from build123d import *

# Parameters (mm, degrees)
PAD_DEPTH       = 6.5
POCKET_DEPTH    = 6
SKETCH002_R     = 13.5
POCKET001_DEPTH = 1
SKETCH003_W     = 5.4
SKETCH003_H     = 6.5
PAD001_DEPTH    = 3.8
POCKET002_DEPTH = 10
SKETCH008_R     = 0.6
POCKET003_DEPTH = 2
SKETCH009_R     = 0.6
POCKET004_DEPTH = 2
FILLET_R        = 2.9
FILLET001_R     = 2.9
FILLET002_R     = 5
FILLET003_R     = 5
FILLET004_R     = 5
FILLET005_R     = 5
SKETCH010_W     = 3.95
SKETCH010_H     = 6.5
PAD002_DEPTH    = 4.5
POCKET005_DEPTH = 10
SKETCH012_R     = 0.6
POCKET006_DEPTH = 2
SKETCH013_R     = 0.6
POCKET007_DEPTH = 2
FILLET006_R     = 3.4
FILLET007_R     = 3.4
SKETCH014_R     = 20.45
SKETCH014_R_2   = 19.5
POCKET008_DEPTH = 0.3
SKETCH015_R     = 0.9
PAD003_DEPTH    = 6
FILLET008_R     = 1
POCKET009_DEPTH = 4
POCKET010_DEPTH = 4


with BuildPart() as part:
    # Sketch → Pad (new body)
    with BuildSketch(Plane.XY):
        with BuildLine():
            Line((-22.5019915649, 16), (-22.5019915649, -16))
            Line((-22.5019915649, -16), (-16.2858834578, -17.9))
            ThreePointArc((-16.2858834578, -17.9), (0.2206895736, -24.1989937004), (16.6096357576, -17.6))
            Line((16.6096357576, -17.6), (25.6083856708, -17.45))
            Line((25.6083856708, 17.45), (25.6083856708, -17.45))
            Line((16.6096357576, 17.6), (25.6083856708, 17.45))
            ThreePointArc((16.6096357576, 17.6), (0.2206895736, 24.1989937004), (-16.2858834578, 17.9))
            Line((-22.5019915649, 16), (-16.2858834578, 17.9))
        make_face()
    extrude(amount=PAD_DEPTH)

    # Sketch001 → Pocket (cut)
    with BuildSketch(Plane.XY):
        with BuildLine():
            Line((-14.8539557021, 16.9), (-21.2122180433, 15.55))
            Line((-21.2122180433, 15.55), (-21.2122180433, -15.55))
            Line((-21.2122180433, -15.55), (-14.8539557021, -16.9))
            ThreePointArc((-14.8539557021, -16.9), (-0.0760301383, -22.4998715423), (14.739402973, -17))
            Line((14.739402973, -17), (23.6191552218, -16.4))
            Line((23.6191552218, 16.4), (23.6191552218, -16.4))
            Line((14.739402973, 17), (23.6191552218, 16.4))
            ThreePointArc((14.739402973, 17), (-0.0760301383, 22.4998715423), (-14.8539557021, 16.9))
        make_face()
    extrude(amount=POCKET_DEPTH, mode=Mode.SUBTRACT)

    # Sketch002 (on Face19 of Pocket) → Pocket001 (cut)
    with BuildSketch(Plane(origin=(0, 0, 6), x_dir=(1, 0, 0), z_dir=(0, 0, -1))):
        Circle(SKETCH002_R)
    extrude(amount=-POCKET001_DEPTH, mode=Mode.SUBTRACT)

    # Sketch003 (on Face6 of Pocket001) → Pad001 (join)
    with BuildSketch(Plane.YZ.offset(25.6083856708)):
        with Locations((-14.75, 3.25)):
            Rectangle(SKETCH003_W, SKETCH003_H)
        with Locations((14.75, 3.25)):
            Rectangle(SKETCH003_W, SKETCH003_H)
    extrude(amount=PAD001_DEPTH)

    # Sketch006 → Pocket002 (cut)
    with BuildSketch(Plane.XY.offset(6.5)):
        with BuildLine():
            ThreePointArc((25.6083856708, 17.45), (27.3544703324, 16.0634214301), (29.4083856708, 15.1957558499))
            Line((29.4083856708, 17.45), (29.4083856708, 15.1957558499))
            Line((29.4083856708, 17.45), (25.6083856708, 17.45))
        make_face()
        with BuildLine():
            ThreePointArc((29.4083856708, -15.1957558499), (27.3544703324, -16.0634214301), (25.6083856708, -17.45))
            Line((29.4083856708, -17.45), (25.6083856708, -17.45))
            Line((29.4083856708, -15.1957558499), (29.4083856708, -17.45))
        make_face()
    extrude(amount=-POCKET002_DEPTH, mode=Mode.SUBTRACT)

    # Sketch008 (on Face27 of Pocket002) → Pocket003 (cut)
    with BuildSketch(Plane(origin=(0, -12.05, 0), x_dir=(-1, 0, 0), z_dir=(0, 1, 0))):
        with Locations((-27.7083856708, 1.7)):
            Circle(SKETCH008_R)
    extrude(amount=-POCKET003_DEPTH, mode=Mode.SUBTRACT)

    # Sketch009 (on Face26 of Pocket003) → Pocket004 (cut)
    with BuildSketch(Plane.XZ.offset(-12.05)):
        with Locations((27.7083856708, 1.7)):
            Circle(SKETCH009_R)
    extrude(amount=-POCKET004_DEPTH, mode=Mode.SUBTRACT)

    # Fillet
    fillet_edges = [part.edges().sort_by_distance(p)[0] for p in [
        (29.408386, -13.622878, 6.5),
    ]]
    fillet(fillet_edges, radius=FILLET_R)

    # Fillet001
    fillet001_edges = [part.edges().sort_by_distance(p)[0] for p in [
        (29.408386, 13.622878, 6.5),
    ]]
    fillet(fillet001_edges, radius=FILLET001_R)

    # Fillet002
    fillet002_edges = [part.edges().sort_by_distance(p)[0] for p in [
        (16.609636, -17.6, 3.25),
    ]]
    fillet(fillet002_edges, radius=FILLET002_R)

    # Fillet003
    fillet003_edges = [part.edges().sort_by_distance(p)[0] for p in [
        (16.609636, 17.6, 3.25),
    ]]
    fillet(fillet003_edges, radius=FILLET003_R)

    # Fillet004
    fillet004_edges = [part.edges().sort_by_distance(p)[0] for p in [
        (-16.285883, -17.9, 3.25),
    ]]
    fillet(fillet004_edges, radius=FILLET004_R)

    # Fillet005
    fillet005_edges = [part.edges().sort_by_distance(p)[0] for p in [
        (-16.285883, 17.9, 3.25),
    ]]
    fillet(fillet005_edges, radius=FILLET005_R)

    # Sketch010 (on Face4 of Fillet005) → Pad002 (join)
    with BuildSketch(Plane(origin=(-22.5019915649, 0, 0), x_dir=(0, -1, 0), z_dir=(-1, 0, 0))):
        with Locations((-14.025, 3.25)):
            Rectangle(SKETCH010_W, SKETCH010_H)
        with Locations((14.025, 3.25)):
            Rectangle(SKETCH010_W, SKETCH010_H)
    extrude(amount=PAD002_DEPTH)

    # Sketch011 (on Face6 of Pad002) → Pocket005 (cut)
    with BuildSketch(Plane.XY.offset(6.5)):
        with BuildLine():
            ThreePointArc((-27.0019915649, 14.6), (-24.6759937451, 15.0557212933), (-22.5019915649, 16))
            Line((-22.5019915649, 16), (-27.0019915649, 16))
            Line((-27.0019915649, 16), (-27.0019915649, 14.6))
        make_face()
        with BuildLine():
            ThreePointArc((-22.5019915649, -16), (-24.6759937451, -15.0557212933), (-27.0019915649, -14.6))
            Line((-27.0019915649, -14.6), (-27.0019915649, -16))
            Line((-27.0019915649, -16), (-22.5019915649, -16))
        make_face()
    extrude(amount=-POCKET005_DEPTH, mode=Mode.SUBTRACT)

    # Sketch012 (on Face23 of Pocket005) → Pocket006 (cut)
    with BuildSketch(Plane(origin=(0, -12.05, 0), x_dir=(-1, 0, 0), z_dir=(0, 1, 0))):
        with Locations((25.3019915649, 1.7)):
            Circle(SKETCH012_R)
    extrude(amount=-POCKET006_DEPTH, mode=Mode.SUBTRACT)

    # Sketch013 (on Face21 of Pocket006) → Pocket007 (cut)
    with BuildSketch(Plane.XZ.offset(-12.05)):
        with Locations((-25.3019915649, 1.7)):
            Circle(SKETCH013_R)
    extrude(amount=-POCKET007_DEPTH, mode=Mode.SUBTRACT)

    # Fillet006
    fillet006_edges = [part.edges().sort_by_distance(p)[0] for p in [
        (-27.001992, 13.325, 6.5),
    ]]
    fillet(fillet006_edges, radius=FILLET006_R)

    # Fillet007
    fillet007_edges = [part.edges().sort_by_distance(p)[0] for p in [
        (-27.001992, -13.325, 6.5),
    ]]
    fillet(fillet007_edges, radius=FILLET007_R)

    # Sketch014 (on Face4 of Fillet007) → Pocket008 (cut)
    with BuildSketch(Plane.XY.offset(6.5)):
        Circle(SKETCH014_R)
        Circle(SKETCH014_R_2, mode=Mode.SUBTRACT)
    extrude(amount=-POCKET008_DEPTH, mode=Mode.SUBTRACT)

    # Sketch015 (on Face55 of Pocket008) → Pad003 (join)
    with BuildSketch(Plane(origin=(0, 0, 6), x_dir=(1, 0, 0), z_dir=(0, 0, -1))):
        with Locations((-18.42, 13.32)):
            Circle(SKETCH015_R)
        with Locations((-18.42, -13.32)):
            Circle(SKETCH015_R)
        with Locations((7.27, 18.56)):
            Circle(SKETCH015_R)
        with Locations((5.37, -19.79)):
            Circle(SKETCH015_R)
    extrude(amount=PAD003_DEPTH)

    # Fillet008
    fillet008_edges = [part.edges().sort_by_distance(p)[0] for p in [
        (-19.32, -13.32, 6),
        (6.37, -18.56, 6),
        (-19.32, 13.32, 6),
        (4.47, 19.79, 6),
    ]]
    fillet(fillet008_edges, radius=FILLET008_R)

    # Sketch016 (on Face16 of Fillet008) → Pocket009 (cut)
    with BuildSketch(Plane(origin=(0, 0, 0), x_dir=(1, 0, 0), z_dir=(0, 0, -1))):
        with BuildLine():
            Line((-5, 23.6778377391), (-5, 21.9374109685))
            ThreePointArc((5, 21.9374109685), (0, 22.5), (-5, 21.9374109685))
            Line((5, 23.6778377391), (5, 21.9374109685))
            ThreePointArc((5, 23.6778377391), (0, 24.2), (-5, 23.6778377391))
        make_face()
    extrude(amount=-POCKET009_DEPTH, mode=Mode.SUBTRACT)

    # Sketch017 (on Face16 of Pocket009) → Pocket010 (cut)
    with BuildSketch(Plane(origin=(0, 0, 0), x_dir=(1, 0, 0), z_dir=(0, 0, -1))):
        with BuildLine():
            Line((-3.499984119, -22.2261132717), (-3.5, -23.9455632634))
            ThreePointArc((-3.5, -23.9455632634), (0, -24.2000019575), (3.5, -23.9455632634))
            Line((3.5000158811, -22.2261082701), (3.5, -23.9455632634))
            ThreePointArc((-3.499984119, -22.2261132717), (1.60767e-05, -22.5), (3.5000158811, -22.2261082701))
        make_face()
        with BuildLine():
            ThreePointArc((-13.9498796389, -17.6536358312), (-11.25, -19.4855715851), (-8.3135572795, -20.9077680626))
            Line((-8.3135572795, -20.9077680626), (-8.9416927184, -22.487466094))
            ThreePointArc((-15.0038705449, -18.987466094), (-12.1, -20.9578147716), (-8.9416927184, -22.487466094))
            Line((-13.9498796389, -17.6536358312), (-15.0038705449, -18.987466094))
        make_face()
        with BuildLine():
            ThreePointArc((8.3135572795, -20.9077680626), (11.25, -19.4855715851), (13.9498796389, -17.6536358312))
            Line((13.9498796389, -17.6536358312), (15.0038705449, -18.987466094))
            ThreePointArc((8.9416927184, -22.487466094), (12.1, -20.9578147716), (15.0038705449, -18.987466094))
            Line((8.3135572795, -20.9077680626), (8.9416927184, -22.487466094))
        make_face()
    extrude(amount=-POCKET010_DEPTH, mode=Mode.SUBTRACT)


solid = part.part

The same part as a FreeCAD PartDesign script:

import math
import FreeCAD as App
import Part
import Sketcher

V = App.Vector


def edges_at(feature, points):
    """Names of the edges that pass closest to the given points."""
    edges = feature.Shape.Edges
    near = lambda p: min(range(len(edges)), key=lambda i: edges[i].distToShape(Part.Vertex(*p))[0])
    return sorted({f"Edge{near(p) + 1}" for p in points})


def add_polygon(sketch, points):
    """Adds a closed chain of lines whose ends are joined by coincident constraints."""
    first, n = sketch.GeometryCount, len(points)
    for a, b in zip(points, points[1:] + points[:1]):
        sketch.addGeometry(Part.LineSegment(App.Vector(*a, 0), App.Vector(*b, 0)), False)
    for i in range(n):
        sketch.addConstraint(Sketcher.Constraint("Coincident", first + i, 2, first + (i + 1) % n, 1))

doc = App.newDocument("Part")
body = doc.addObject("PartDesign::Body", "Body")

# Sketch on XY plane
sketch1 = body.newObject("Sketcher::SketchObject", "Sketch")
sketch1.AttachmentSupport = (doc.getObject("XY_Plane"), [""])
sketch1.MapMode = "FlatFace"
sketch1.addGeometry(Part.LineSegment(V(-23, 16, 0), V(-23, -16, 0)), False)
sketch1.addGeometry(Part.LineSegment(V(-23, -16, 0), V(-16, -18, 0)), False)
sketch1.addGeometry(Part.ArcOfCircle(Part.Circle(V(0, 0, 0), V(0, 0, 1), 24), math.radians(-132), math.radians(-47)), False)
sketch1.addGeometry(Part.LineSegment(V(17, -18, 0), V(26, -17, 0)), False)
sketch1.addGeometry(Part.LineSegment(V(26, -17, 0), V(26, 17, 0)), False)
sketch1.addGeometry(Part.LineSegment(V(26, 17, 0), V(17, 18, 0)), False)
sketch1.addGeometry(Part.ArcOfCircle(Part.Circle(V(0, 0, 0), V(0, 0, 1), 24), math.radians(47), math.radians(132)), False)
sketch1.addGeometry(Part.LineSegment(V(-16, 18, 0), V(-23, 16, 0)), False)
sketch1.addConstraint(Sketcher.Constraint("Coincident", 0, 2, 1, 1))
sketch1.addConstraint(Sketcher.Constraint("Coincident", 1, 2, 2, 1))
sketch1.addConstraint(Sketcher.Constraint("Coincident", 2, 2, 3, 1))
sketch1.addConstraint(Sketcher.Constraint("Coincident", 3, 2, 4, 1))
sketch1.addConstraint(Sketcher.Constraint("Coincident", 4, 2, 5, 1))
sketch1.addConstraint(Sketcher.Constraint("Coincident", 5, 2, 6, 1))
sketch1.addConstraint(Sketcher.Constraint("Coincident", 6, 2, 7, 1))
sketch1.addConstraint(Sketcher.Constraint("Coincident", 7, 2, 0, 1))
sketch1.addConstraint(Sketcher.Constraint("Vertical", 0))
sketch1.addConstraint(Sketcher.Constraint("Vertical", 4))
sketch1.addConstraint(Sketcher.Constraint("Coincident", 2, 3, -1, 1))
sketch1.addConstraint(Sketcher.Constraint("Coincident", 6, 3, -1, 1))
sketch1.addConstraint(Sketcher.Constraint("Equal", 2, 6))
sketch1.addConstraint(Sketcher.Constraint("Vertical", 2, 2, 5, 2))
sketch1.addConstraint(Sketcher.Constraint("Vertical", 1, 2, 6, 2))
sketch1.addConstraint(Sketcher.Constraint("Equal", 3, 5))
sketch1.addConstraint(Sketcher.Constraint("Equal", 1, 7))
sketch1.addConstraint(Sketcher.Constraint("Radius", 2, 24.2))
sketch1.addConstraint(Sketcher.Constraint("DistanceY", 0, 2, 0, 1, 32.0))
sketch1.addConstraint(Sketcher.Constraint("Distance", 3, 9.0))
sketch1.addConstraint(Sketcher.Constraint("DistanceY", 4, 1, 4, 2, 34.9))
sketch1.addConstraint(Sketcher.Constraint("Distance", 1, 6.5))
sketch1.addConstraint(Sketcher.Constraint("DistanceY", 1, 2, -1, 1, 17.9))
sketch1.addConstraint(Sketcher.Constraint("DistanceY", 2, 2, -1, 1, 17.6))
pad1 = body.newObject("PartDesign::Pad", "Pad")
pad1.Profile = sketch1
pad1.Length = 6.5

# Sketch on XY plane
sketch2 = body.newObject("Sketcher::SketchObject", "Sketch001")
sketch2.AttachmentSupport = (doc.getObject("XY_Plane"), [""])
sketch2.MapMode = "FlatFace"
sketch2.addGeometry(Part.LineSegment(V(-15, 17, 0), V(-21, 16, 0)), False)
sketch2.addGeometry(Part.LineSegment(V(-21, 16, 0), V(-21, -16, 0)), False)
sketch2.addGeometry(Part.LineSegment(V(-21, -16, 0), V(-15, -17, 0)), False)
sketch2.addGeometry(Part.ArcOfCircle(Part.Circle(V(0, 0, 0), V(0, 0, 1), 22), math.radians(-131), math.radians(-49)), False)
sketch2.addGeometry(Part.LineSegment(V(15, -17, 0), V(24, -16, 0)), False)
sketch2.addGeometry(Part.LineSegment(V(24, -16, 0), V(24, 16, 0)), False)
sketch2.addGeometry(Part.LineSegment(V(24, 16, 0), V(15, 17, 0)), False)
sketch2.addGeometry(Part.ArcOfCircle(Part.Circle(V(0, 0, 0), V(0, 0, 1), 22), math.radians(49), math.radians(131)), False)
sketch2.addConstraint(Sketcher.Constraint("Coincident", 0, 2, 1, 1))
sketch2.addConstraint(Sketcher.Constraint("Coincident", 1, 2, 2, 1))
sketch2.addConstraint(Sketcher.Constraint("Coincident", 2, 2, 3, 1))
sketch2.addConstraint(Sketcher.Constraint("Coincident", 3, 2, 4, 1))
sketch2.addConstraint(Sketcher.Constraint("Coincident", 4, 2, 5, 1))
sketch2.addConstraint(Sketcher.Constraint("Coincident", 5, 2, 6, 1))
sketch2.addConstraint(Sketcher.Constraint("Coincident", 6, 2, 7, 1))
sketch2.addConstraint(Sketcher.Constraint("Coincident", 7, 2, 0, 1))
sketch2.addConstraint(Sketcher.Constraint("Vertical", 1))
sketch2.addConstraint(Sketcher.Constraint("Vertical", 5))
sketch2.addConstraint(Sketcher.Constraint("Coincident", 3, 3, -1, 1))
sketch2.addConstraint(Sketcher.Constraint("Coincident", 7, 3, -1, 1))
sketch2.addConstraint(Sketcher.Constraint("Equal", 3, 7))
sketch2.addConstraint(Sketcher.Constraint("Vertical", 3, 2, 6, 2))
sketch2.addConstraint(Sketcher.Constraint("Vertical", 2, 2, 7, 2))
sketch2.addConstraint(Sketcher.Constraint("Equal", 0, 2))
sketch2.addConstraint(Sketcher.Constraint("Equal", 4, 6))
sketch2.addConstraint(Sketcher.Constraint("Radius", 3, 22.5))
sketch2.addConstraint(Sketcher.Constraint("DistanceY", 1, 2, 1, 1, 31.1))
sketch2.addConstraint(Sketcher.Constraint("DistanceY", 5, 1, 5, 2, 32.8))
sketch2.addConstraint(Sketcher.Constraint("DistanceY", 3, 2, -1, 1, 17.0))
sketch2.addConstraint(Sketcher.Constraint("Distance", 0, 6.5))
sketch2.addConstraint(Sketcher.Constraint("Distance", 4, 8.9))
sketch2.addConstraint(Sketcher.Constraint("DistanceY", 2, 2, -1, 1, 16.9))
pocket1 = body.newObject("PartDesign::Pocket", "Pocket")
pocket1.Profile = sketch2
pocket1.Length = 6
pocket1.Reversed = True

# Sketch on XY plane
sketch3 = body.newObject("Sketcher::SketchObject", "Sketch002")
sketch3.AttachmentSupport = (doc.getObject("XY_Plane"), [""])
sketch3.MapMode = "FlatFace"
sketch3.AttachmentOffset = App.Placement(V(0, 0, 6), App.Rotation())
sketch3.addGeometry(Part.Circle(V(0, 0, 0), V(0, 0, 1), 14), False)
sketch3.addConstraint(Sketcher.Constraint("Coincident", 0, 3, -1, 1))
sketch3.addConstraint(Sketcher.Constraint("Diameter", 0, 27.0))
pocket2 = body.newObject("PartDesign::Pocket", "Pocket001")
pocket2.Profile = sketch3
pocket2.Length = 1
pocket2.Reversed = True

# Sketch on YZ plane
sketch4 = body.newObject("Sketcher::SketchObject", "Sketch003")
sketch4.AttachmentSupport = (doc.getObject("YZ_Plane"), [""])
sketch4.MapMode = "FlatFace"
sketch4.AttachmentOffset = App.Placement(V(0, 0, 25.608386), App.Rotation())
add_polygon(sketch4, [(-17, 6), (-17, 0), (-12, 0), (-12, 6)])  # lines 0-3
add_polygon(sketch4, [(12, 6), (12, 0), (17, 0), (17, 6)])  # lines 4-7
sketch4.addConstraint(Sketcher.Constraint("Vertical", 0))
sketch4.addConstraint(Sketcher.Constraint("Horizontal", 1))
sketch4.addConstraint(Sketcher.Constraint("Vertical", 2))
sketch4.addConstraint(Sketcher.Constraint("Horizontal", 3))
sketch4.addConstraint(Sketcher.Constraint("Vertical", 4))
sketch4.addConstraint(Sketcher.Constraint("Horizontal", 5))
sketch4.addConstraint(Sketcher.Constraint("Vertical", 6))
sketch4.addConstraint(Sketcher.Constraint("Horizontal", 7))
sketch4.addConstraint(Sketcher.Constraint("Symmetric", 1, 2, 4, 2, -1, 1))
sketch4.addConstraint(Sketcher.Constraint("Symmetric", 0, 2, 5, 2, -2))
sketch4.addConstraint(Sketcher.Constraint("Horizontal", 3, 2, 6, 2))
sketch4.addConstraint(Sketcher.Constraint("DistanceX", 1, 1, 1, 2, 5.4))
sketch4.addConstraint(Sketcher.Constraint("DistanceY", 0, 2, 0, 1, 6.5))
sketch4.addConstraint(Sketcher.Constraint("DistanceX", 1, 2, 4, 2, 24.1))
pad2 = body.newObject("PartDesign::Pad", "Pad001")
pad2.Profile = sketch4
pad2.Length = 3.8

# Sketch on XY plane
sketch5 = body.newObject("Sketcher::SketchObject", "Sketch004")
sketch5.AttachmentSupport = (doc.getObject("XY_Plane"), [""])
sketch5.MapMode = "FlatFace"
sketch5.AttachmentOffset = App.Placement(V(0, 0, 6.5), App.Rotation())
sketch5.addGeometry(Part.ArcOfCircle(Part.Circle(V(31.6, 23.1, 0), V(0, 0, 1), 8.2), math.radians(-136), math.radians(-105)), False)
sketch5.addGeometry(Part.LineSegment(V(29.4, 15.2, 0), V(29.4, 17.4, 0)), False)
sketch5.addGeometry(Part.LineSegment(V(29.4, 17.4, 0), V(25.6, 17.4, 0)), False)
sketch5.addGeometry(Part.ArcOfCircle(Part.Circle(V(31.6, -23.1, 0), V(0, 0, 1), 8.2), math.radians(105), math.radians(136)), False)
sketch5.addGeometry(Part.LineSegment(V(25.6, -17.4, 0), V(29.4, -17.4, 0)), False)
sketch5.addGeometry(Part.LineSegment(V(29.4, -17.4, 0), V(29.4, -15.2, 0)), False)
sketch5.addConstraint(Sketcher.Constraint("Coincident", 0, 2, 1, 1))
sketch5.addConstraint(Sketcher.Constraint("Coincident", 1, 2, 2, 1))
sketch5.addConstraint(Sketcher.Constraint("Coincident", 2, 2, 0, 1))
sketch5.addConstraint(Sketcher.Constraint("Coincident", 3, 2, 4, 1))
sketch5.addConstraint(Sketcher.Constraint("Coincident", 4, 2, 5, 1))
sketch5.addConstraint(Sketcher.Constraint("Coincident", 5, 2, 3, 1))
sketch5.addConstraint(Sketcher.Constraint("Vertical", 1))
sketch5.addConstraint(Sketcher.Constraint("Horizontal", 2))
sketch5.addConstraint(Sketcher.Constraint("Horizontal", 4))
sketch5.addConstraint(Sketcher.Constraint("Vertical", 5))
sketch5.addConstraint(Sketcher.Constraint("Equal", 0, 3))
sketch5.addConstraint(Sketcher.Constraint("Symmetric", 0, 3, 3, 3, -1))
sketch5.addConstraint(Sketcher.Constraint("Symmetric", 1, 2, 4, 2, -1))
sketch5.addConstraint(Sketcher.Constraint("DistanceX", 2, 2, 2, 1, 3.8))
sketch5.addConstraint(Sketcher.Constraint("DistanceY", 3, 3, 0, 3, 46.3))
sketch5.addConstraint(Sketcher.Constraint("DistanceY", 1, 2, 0, 3, 5.7))
sketch5.addConstraint(Sketcher.Constraint("Radius", 0, 8.239691))
sketch5.addConstraint(Sketcher.Constraint("DistanceX", -1, 1, 0, 3, 31.558386))
pocket3 = body.newObject("PartDesign::Pocket", "Pocket002")
pocket3.Profile = sketch5
pocket3.Length = 10

# Sketch on XZ plane
sketch6 = body.newObject("Sketcher::SketchObject", "Sketch005")
sketch6.AttachmentSupport = (doc.getObject("XZ_Plane"), [""])
sketch6.MapMode = "FlatFace"
sketch6.AttachmentOffset = App.Placement(V(0, 0, 12.05), App.Rotation())
sketch6.addGeometry(Part.Circle(V(27.7, 1.7, 0), V(0, 0, 1), 0.6), False)
sketch6.addConstraint(Sketcher.Constraint("Diameter", 0, 1.2))
sketch6.addConstraint(Sketcher.Constraint("DistanceY", -1, 1, 0, 3, 1.7))
sketch6.addConstraint(Sketcher.Constraint("DistanceX", -1, 1, 0, 3, 27.708386))
pocket4 = body.newObject("PartDesign::Pocket", "Pocket003")
pocket4.Profile = sketch6
pocket4.Length = 2
pocket4.Reversed = True

# Sketch on XZ plane
sketch7 = body.newObject("Sketcher::SketchObject", "Sketch006")
sketch7.AttachmentSupport = (doc.getObject("XZ_Plane"), [""])
sketch7.MapMode = "FlatFace"
sketch7.AttachmentOffset = App.Placement(V(0, 0, -12.05), App.Rotation())
sketch7.addGeometry(Part.Circle(V(27.7, 1.7, 0), V(0, 0, 1), 0.6), False)
sketch7.addConstraint(Sketcher.Constraint("Diameter", 0, 1.2))
sketch7.addConstraint(Sketcher.Constraint("DistanceY", -1, 1, 0, 3, 1.7))
sketch7.addConstraint(Sketcher.Constraint("DistanceX", -1, 1, 0, 3, 27.708386))
pocket5 = body.newObject("PartDesign::Pocket", "Pocket004")
pocket5.Profile = sketch7
pocket5.Length = 2
doc.recompute()

fillet = body.newObject("PartDesign::Fillet", "Fillet")
fillet.Base = (pocket5, edges_at(pocket5, [(29.408, -13.623, 6.5)]))
fillet.Radius = 2.9
doc.recompute()

fillet2 = body.newObject("PartDesign::Fillet", "Fillet001")
fillet2.Base = (fillet, edges_at(fillet, [(29.408, 13.623, 6.5)]))
fillet2.Radius = 2.9
doc.recompute()

fillet3 = body.newObject("PartDesign::Fillet", "Fillet002")
fillet3.Base = (fillet2, edges_at(fillet2, [(16.61, -17.6, 3.25)]))
fillet3.Radius = 5
doc.recompute()

fillet4 = body.newObject("PartDesign::Fillet", "Fillet003")
fillet4.Base = (fillet3, edges_at(fillet3, [(16.61, 17.6, 3.25)]))
fillet4.Radius = 5
doc.recompute()

fillet5 = body.newObject("PartDesign::Fillet", "Fillet004")
fillet5.Base = (fillet4, edges_at(fillet4, [(-16.286, -17.9, 3.25)]))
fillet5.Radius = 5
doc.recompute()

fillet6 = body.newObject("PartDesign::Fillet", "Fillet005")
fillet6.Base = (fillet5, edges_at(fillet5, [(-16.286, 17.9, 3.25)]))
fillet6.Radius = 5

# Sketch on YZ plane
sketch8 = body.newObject("Sketcher::SketchObject", "Sketch007")
sketch8.AttachmentSupport = (doc.getObject("YZ_Plane"), [""])
sketch8.MapMode = "FlatFace"
sketch8.AttachmentOffset = App.Placement(V(0, 0, -22.501992), App.Rotation())
add_polygon(sketch8, [(16, 6.5), (16, 0), (12.1, 0), (12.1, 6.5)])  # lines 0-3
add_polygon(sketch8, [(-12.1, 6.5), (-12.1, 0), (-16, 0), (-16, 6.5)])  # lines 4-7
sketch8.addConstraint(Sketcher.Constraint("Vertical", 0))
sketch8.addConstraint(Sketcher.Constraint("Horizontal", 1))
sketch8.addConstraint(Sketcher.Constraint("Vertical", 2))
sketch8.addConstraint(Sketcher.Constraint("Horizontal", 3))
sketch8.addConstraint(Sketcher.Constraint("Vertical", 4))
sketch8.addConstraint(Sketcher.Constraint("Horizontal", 5))
sketch8.addConstraint(Sketcher.Constraint("Vertical", 6))
sketch8.addConstraint(Sketcher.Constraint("Horizontal", 7))
sketch8.addConstraint(Sketcher.Constraint("Symmetric", 1, 2, 4, 2, -1, 1))
sketch8.addConstraint(Sketcher.Constraint("Symmetric", 0, 2, 5, 2, -2))
sketch8.addConstraint(Sketcher.Constraint("Horizontal", 3, 2, 6, 2))
sketch8.addConstraint(Sketcher.Constraint("DistanceY", 0, 2, 0, 1, 6.5))
sketch8.addConstraint(Sketcher.Constraint("DistanceX", -1, 1, 0, 2, 16.0))
sketch8.addConstraint(Sketcher.Constraint("DistanceX", 1, 2, 1, 1, 3.95))
pad3 = body.newObject("PartDesign::Pad", "Pad002")
pad3.Profile = sketch8
pad3.Length = 4.5
pad3.Reversed = True

# Sketch on XY plane
sketch9 = body.newObject("Sketcher::SketchObject", "Sketch008")
sketch9.AttachmentSupport = (doc.getObject("XY_Plane"), [""])
sketch9.MapMode = "FlatFace"
sketch9.AttachmentOffset = App.Placement(V(0, 0, 6.5), App.Rotation())
sketch9.addGeometry(Part.ArcOfCircle(Part.Circle(V(-27.9, 25.5, 0), V(0, 0, 1), 11), math.radians(-85), math.radians(-60)), False)
sketch9.addGeometry(Part.LineSegment(V(-22.5, 16, 0), V(-27, 16, 0)), False)
sketch9.addGeometry(Part.LineSegment(V(-27, 16, 0), V(-27, 14.6, 0)), False)
sketch9.addGeometry(Part.ArcOfCircle(Part.Circle(V(-27.9, -25.5, 0), V(0, 0, 1), 11), math.radians(60), math.radians(85)), False)
sketch9.addGeometry(Part.LineSegment(V(-27, -14.6, 0), V(-27, -16, 0)), False)
sketch9.addGeometry(Part.LineSegment(V(-27, -16, 0), V(-22.5, -16, 0)), False)
sketch9.addConstraint(Sketcher.Constraint("Coincident", 0, 2, 1, 1))
sketch9.addConstraint(Sketcher.Constraint("Coincident", 1, 2, 2, 1))
sketch9.addConstraint(Sketcher.Constraint("Coincident", 2, 2, 0, 1))
sketch9.addConstraint(Sketcher.Constraint("Coincident", 3, 2, 4, 1))
sketch9.addConstraint(Sketcher.Constraint("Coincident", 4, 2, 5, 1))
sketch9.addConstraint(Sketcher.Constraint("Coincident", 5, 2, 3, 1))
sketch9.addConstraint(Sketcher.Constraint("Horizontal", 1))
sketch9.addConstraint(Sketcher.Constraint("Vertical", 2))
sketch9.addConstraint(Sketcher.Constraint("Vertical", 4))
sketch9.addConstraint(Sketcher.Constraint("Horizontal", 5))
sketch9.addConstraint(Sketcher.Constraint("Equal", 0, 3))
sketch9.addConstraint(Sketcher.Constraint("Symmetric", 0, 3, 3, 3, -1))
sketch9.addConstraint(Sketcher.Constraint("Symmetric", 1, 2, 4, 2, -1))
sketch9.addConstraint(Sketcher.Constraint("DistanceX", 1, 2, 1, 1, 4.5))
sketch9.addConstraint(Sketcher.Constraint("DistanceY", 2, 2, 2, 1, 1.4))
sketch9.addConstraint(Sketcher.Constraint("DistanceY", -1, 1, 0, 2, 16.0))
sketch9.addConstraint(Sketcher.Constraint("DistanceY", -1, 1, 0, 3, 25.54))
sketch9.addConstraint(Sketcher.Constraint("DistanceX", 0, 3, -1, 1, 27.937769))
pocket6 = body.newObject("PartDesign::Pocket", "Pocket005")
pocket6.Profile = sketch9
pocket6.Length = 10

# Sketch on XZ plane
sketch10 = body.newObject("Sketcher::SketchObject", "Sketch009")
sketch10.AttachmentSupport = (doc.getObject("XZ_Plane"), [""])
sketch10.MapMode = "FlatFace"
sketch10.AttachmentOffset = App.Placement(V(0, 0, 12.05), App.Rotation())
sketch10.addGeometry(Part.Circle(V(-25.3, 1.7, 0), V(0, 0, 1), 0.6), False)
sketch10.addConstraint(Sketcher.Constraint("Diameter", 0, 1.2))
sketch10.addConstraint(Sketcher.Constraint("DistanceY", -1, 1, 0, 3, 1.7))
sketch10.addConstraint(Sketcher.Constraint("DistanceX", 0, 3, -1, 1, 25.301992))
pocket7 = body.newObject("PartDesign::Pocket", "Pocket006")
pocket7.Profile = sketch10
pocket7.Length = 2
pocket7.Reversed = True

# Sketch on XZ plane
sketch11 = body.newObject("Sketcher::SketchObject", "Sketch010")
sketch11.AttachmentSupport = (doc.getObject("XZ_Plane"), [""])
sketch11.MapMode = "FlatFace"
sketch11.AttachmentOffset = App.Placement(V(0, 0, -12.05), App.Rotation())
sketch11.addGeometry(Part.Circle(V(-25.3, 1.7, 0), V(0, 0, 1), 0.6), False)
sketch11.addConstraint(Sketcher.Constraint("Diameter", 0, 1.2))
sketch11.addConstraint(Sketcher.Constraint("DistanceY", -1, 1, 0, 3, 1.7))
sketch11.addConstraint(Sketcher.Constraint("DistanceX", 0, 3, -1, 1, 25.301992))
pocket8 = body.newObject("PartDesign::Pocket", "Pocket007")
pocket8.Profile = sketch11
pocket8.Length = 2
doc.recompute()

fillet7 = body.newObject("PartDesign::Fillet", "Fillet006")
fillet7.Base = (pocket8, edges_at(pocket8, [(-27.002, 13.325, 6.5)]))
fillet7.Radius = 3.4
doc.recompute()

fillet8 = body.newObject("PartDesign::Fillet", "Fillet007")
fillet8.Base = (fillet7, edges_at(fillet7, [(-27.002, -13.325, 6.5)]))
fillet8.Radius = 3.4

# Sketch on XY plane
sketch12 = body.newObject("Sketcher::SketchObject", "Sketch011")
sketch12.AttachmentSupport = (doc.getObject("XY_Plane"), [""])
sketch12.MapMode = "FlatFace"
sketch12.AttachmentOffset = App.Placement(V(0, 0, 6.5), App.Rotation())
sketch12.addGeometry(Part.Circle(V(0, 0, 0), V(0, 0, 1), 20), False)
sketch12.addGeometry(Part.Circle(V(0, 0, 0), V(0, 0, 1), 20), False)
sketch12.addConstraint(Sketcher.Constraint("Coincident", 0, 3, -1, 1))
sketch12.addConstraint(Sketcher.Constraint("Coincident", 1, 3, -1, 1))
sketch12.addConstraint(Sketcher.Constraint("Diameter", 1, 39.0))
sketch12.addConstraint(Sketcher.Constraint("Diameter", 0, 40.9))
pocket9 = body.newObject("PartDesign::Pocket", "Pocket008")
pocket9.Profile = sketch12
pocket9.Length = 0.3

# Sketch on XY plane
sketch13 = body.newObject("Sketcher::SketchObject", "Sketch012")
sketch13.AttachmentSupport = (doc.getObject("XY_Plane"), [""])
sketch13.MapMode = "FlatFace"
sketch13.AttachmentOffset = App.Placement(V(0, 0, 6), App.Rotation())
sketch13.addGeometry(Part.Circle(V(-18.4, -13.3, 0), V(0, 0, 1), 0.9), False)
sketch13.addGeometry(Part.Circle(V(-18.4, 13.3, 0), V(0, 0, 1), 0.9), False)
sketch13.addGeometry(Part.Circle(V(7.3, -18.6, 0), V(0, 0, 1), 0.9), False)
sketch13.addGeometry(Part.Circle(V(5.4, 19.8, 0), V(0, 0, 1), 0.9), False)
sketch13.addConstraint(Sketcher.Constraint("Equal", 0, 1))
sketch13.addConstraint(Sketcher.Constraint("Equal", 1, 2))
sketch13.addConstraint(Sketcher.Constraint("Equal", 2, 3))
sketch13.addConstraint(Sketcher.Constraint("Symmetric", 0, 3, 1, 3, -1))
sketch13.addConstraint(Sketcher.Constraint("Diameter", 0, 1.8))
sketch13.addConstraint(Sketcher.Constraint("DistanceX", 3, 3, 2, 3, 1.9))
sketch13.addConstraint(Sketcher.Constraint("DistanceX", 0, 3, -1, 1, 18.42))
sketch13.addConstraint(Sketcher.Constraint("DistanceY", 0, 3, -1, 1, 13.32))
sketch13.addConstraint(Sketcher.Constraint("DistanceX", -1, 1, 2, 3, 7.27))
sketch13.addConstraint(Sketcher.Constraint("DistanceY", 2, 3, -1, 1, 18.56))
sketch13.addConstraint(Sketcher.Constraint("DistanceY", -1, 1, 3, 3, 19.79))
pad4 = body.newObject("PartDesign::Pad", "Pad003")
pad4.Profile = sketch13
pad4.Length = 6
pad4.Reversed = True
doc.recompute()

fillet9 = body.newObject("PartDesign::Fillet", "Fillet008")
fillet9.Base = (pad4, edges_at(pad4, [
    (-19.32, -13.32, 6),
    (6.37, -18.56, 6),
    (-19.32, 13.32, 6),
    (4.47, 19.79, 6),
]))
fillet9.Radius = 1

# Sketch on XY plane
sketch14 = body.newObject("Sketcher::SketchObject", "Sketch013")
sketch14.AttachmentSupport = (doc.getObject("XY_Plane"), [""])
sketch14.MapMode = "FlatFace"
sketch14.addGeometry(Part.LineSegment(V(-5, -23.7, 0), V(-5, -21.9, 0)), False)
sketch14.addGeometry(Part.ArcOfCircle(Part.Circle(V(0, 0, 0), V(0, 0, 1), 22.5), math.radians(-103), math.radians(-77)), False)
sketch14.addGeometry(Part.LineSegment(V(5, -21.9, 0), V(5, -23.7, 0)), False)
sketch14.addGeometry(Part.ArcOfCircle(Part.Circle(V(0, 0, 0), V(0, 0, 1), 24.2), math.radians(-102), math.radians(-78)), False)
sketch14.addConstraint(Sketcher.Constraint("Coincident", 0, 2, 1, 1))
sketch14.addConstraint(Sketcher.Constraint("Coincident", 1, 2, 2, 1))
sketch14.addConstraint(Sketcher.Constraint("Coincident", 2, 2, 3, 2))
sketch14.addConstraint(Sketcher.Constraint("Coincident", 3, 1, 0, 1))
sketch14.addConstraint(Sketcher.Constraint("Vertical", 0))
sketch14.addConstraint(Sketcher.Constraint("Vertical", 2))
sketch14.addConstraint(Sketcher.Constraint("Coincident", 1, 3, -1, 1))
sketch14.addConstraint(Sketcher.Constraint("Coincident", 3, 3, -1, 1))
sketch14.addConstraint(Sketcher.Constraint("Horizontal", 0, 2, 1, 2))
sketch14.addConstraint(Sketcher.Constraint("Radius", 1, 22.5))
sketch14.addConstraint(Sketcher.Constraint("Radius", 3, 24.2))
sketch14.addConstraint(Sketcher.Constraint("DistanceX", 0, 2, -1, 1, 5.0))
pocket10 = body.newObject("PartDesign::Pocket", "Pocket009")
pocket10.Profile = sketch14
pocket10.Length = 4
pocket10.Reversed = True

# Sketch on XY plane
sketch15 = body.newObject("Sketcher::SketchObject", "Sketch014")
sketch15.AttachmentSupport = (doc.getObject("XY_Plane"), [""])
sketch15.MapMode = "FlatFace"
sketch15.addGeometry(Part.LineSegment(V(-3.5, 22.2, 0), V(-3.5, 23.9, 0)), False)
sketch15.addGeometry(Part.ArcOfCircle(Part.Circle(V(0, 0, 0), V(0, 0, 1), 24.2), math.radians(81.68), math.radians(98.32)), False)
sketch15.addGeometry(Part.LineSegment(V(3.5, 23.9, 0), V(3.5, 22.2, 0)), False)
sketch15.addGeometry(Part.ArcOfCircle(Part.Circle(V(0, 0, 0), V(0, 0, 1), 22.5), math.radians(81.05), math.radians(98.95)), False)
sketch15.addGeometry(Part.ArcOfCircle(Part.Circle(V(0, 0, 0), V(0, 0, 1), 22.5), math.radians(111.68), math.radians(128.32)), False)
sketch15.addGeometry(Part.LineSegment(V(-13.9, 17.7, 0), V(-15, 19, 0)), False)
sketch15.addGeometry(Part.ArcOfCircle(Part.Circle(V(0, 0, 0), V(0, 0, 1), 24.2), math.radians(111.68), math.radians(128.32)), False)
sketch15.addGeometry(Part.LineSegment(V(-8.9, 22.5, 0), V(-8.3, 20.9, 0)), False)
sketch15.addGeometry(Part.ArcOfCircle(Part.Circle(V(0, 0, 0), V(0, 0, 1), 22.5), math.radians(51.68), math.radians(68.32)), False)
sketch15.addGeometry(Part.LineSegment(V(8.3, 20.9, 0), V(8.9, 22.5, 0)), False)
sketch15.addGeometry(Part.ArcOfCircle(Part.Circle(V(0, 0, 0), V(0, 0, 1), 24.2), math.radians(51.68), math.radians(68.32)), False)
sketch15.addGeometry(Part.LineSegment(V(15, 19, 0), V(13.9, 17.7, 0)), False)
sketch15.addConstraint(Sketcher.Constraint("Coincident", 0, 2, 1, 2))
sketch15.addConstraint(Sketcher.Constraint("Coincident", 1, 1, 2, 1))
sketch15.addConstraint(Sketcher.Constraint("Coincident", 2, 2, 3, 1))
sketch15.addConstraint(Sketcher.Constraint("Coincident", 3, 2, 0, 1))
sketch15.addConstraint(Sketcher.Constraint("Coincident", 4, 2, 5, 1))
sketch15.addConstraint(Sketcher.Constraint("Coincident", 5, 2, 6, 2))
sketch15.addConstraint(Sketcher.Constraint("Coincident", 6, 1, 7, 1))
sketch15.addConstraint(Sketcher.Constraint("Coincident", 7, 2, 4, 1))
sketch15.addConstraint(Sketcher.Constraint("Coincident", 8, 2, 9, 1))
sketch15.addConstraint(Sketcher.Constraint("Coincident", 9, 2, 10, 2))
sketch15.addConstraint(Sketcher.Constraint("Coincident", 10, 1, 11, 1))
sketch15.addConstraint(Sketcher.Constraint("Coincident", 11, 2, 8, 1))
sketch15.addConstraint(Sketcher.Constraint("Coincident", 3, 3, -1, 1))
sketch15.addConstraint(Sketcher.Constraint("Coincident", 4, 3, -1, 1))
sketch15.addConstraint(Sketcher.Constraint("Coincident", 6, 3, -1, 1))
sketch15.addConstraint(Sketcher.Constraint("Coincident", 8, 3, -1, 1))
sketch15.addConstraint(Sketcher.Constraint("Coincident", 10, 3, -1, 1))
sketch15.addConstraint(Sketcher.Constraint("Equal", 3, 4))
sketch15.addConstraint(Sketcher.Constraint("Equal", 4, 8))
sketch15.addConstraint(Sketcher.Constraint("Equal", 6, 10))
sketch15.addConstraint(Sketcher.Constraint("Symmetric", 0, 2, 1, 1, -2))
sketch15.addConstraint(Sketcher.Constraint("Parallel", 0, 2))
sketch15.addConstraint(Sketcher.Constraint("Horizontal", 7, 2, 8, 2))
sketch15.addConstraint(Sketcher.Constraint("Horizontal", 6, 1, 9, 2))
sketch15.addConstraint(Sketcher.Constraint("Horizontal", 5, 2, 10, 1))
sketch15.addConstraint(Sketcher.Constraint("Horizontal", 4, 2, 11, 2))
sketch15.addConstraint(Sketcher.Constraint("Radius", 3, 22.5))
sketch15.addConstraint(Sketcher.Constraint("Radius", 6, 24.2))
sketch15.addConstraint(Sketcher.Constraint("DistanceX", 0, 2, 1, 1, 7.0))
sketch15.addConstraint(Sketcher.Constraint("DistanceY", 5, 2, 6, 1, 3.5))
sketch15.addConstraint(Sketcher.Constraint("Radius", 1, 24.199816))
sketch15.addConstraint(Sketcher.Constraint("DistanceY", 7, 2, 6, 1, 1.579698))
sketch15.addConstraint(Sketcher.Constraint("Distance", 0, 1.71945))
sketch15.addConstraint(Sketcher.Constraint("DistanceY", -1, 1, 2, 2, 22.226108))
sketch15.addConstraint(Sketcher.Constraint("DistanceX", 4, 2, -1, 1, 13.94988))
sketch15.addConstraint(Sketcher.Constraint("DistanceX", 5, 2, -1, 1, 15.003871))
pocket11 = body.newObject("PartDesign::Pocket", "Pocket010")
pocket11.Profile = sketch15
pocket11.Length = 4
pocket11.Reversed = True

doc.recompute()
